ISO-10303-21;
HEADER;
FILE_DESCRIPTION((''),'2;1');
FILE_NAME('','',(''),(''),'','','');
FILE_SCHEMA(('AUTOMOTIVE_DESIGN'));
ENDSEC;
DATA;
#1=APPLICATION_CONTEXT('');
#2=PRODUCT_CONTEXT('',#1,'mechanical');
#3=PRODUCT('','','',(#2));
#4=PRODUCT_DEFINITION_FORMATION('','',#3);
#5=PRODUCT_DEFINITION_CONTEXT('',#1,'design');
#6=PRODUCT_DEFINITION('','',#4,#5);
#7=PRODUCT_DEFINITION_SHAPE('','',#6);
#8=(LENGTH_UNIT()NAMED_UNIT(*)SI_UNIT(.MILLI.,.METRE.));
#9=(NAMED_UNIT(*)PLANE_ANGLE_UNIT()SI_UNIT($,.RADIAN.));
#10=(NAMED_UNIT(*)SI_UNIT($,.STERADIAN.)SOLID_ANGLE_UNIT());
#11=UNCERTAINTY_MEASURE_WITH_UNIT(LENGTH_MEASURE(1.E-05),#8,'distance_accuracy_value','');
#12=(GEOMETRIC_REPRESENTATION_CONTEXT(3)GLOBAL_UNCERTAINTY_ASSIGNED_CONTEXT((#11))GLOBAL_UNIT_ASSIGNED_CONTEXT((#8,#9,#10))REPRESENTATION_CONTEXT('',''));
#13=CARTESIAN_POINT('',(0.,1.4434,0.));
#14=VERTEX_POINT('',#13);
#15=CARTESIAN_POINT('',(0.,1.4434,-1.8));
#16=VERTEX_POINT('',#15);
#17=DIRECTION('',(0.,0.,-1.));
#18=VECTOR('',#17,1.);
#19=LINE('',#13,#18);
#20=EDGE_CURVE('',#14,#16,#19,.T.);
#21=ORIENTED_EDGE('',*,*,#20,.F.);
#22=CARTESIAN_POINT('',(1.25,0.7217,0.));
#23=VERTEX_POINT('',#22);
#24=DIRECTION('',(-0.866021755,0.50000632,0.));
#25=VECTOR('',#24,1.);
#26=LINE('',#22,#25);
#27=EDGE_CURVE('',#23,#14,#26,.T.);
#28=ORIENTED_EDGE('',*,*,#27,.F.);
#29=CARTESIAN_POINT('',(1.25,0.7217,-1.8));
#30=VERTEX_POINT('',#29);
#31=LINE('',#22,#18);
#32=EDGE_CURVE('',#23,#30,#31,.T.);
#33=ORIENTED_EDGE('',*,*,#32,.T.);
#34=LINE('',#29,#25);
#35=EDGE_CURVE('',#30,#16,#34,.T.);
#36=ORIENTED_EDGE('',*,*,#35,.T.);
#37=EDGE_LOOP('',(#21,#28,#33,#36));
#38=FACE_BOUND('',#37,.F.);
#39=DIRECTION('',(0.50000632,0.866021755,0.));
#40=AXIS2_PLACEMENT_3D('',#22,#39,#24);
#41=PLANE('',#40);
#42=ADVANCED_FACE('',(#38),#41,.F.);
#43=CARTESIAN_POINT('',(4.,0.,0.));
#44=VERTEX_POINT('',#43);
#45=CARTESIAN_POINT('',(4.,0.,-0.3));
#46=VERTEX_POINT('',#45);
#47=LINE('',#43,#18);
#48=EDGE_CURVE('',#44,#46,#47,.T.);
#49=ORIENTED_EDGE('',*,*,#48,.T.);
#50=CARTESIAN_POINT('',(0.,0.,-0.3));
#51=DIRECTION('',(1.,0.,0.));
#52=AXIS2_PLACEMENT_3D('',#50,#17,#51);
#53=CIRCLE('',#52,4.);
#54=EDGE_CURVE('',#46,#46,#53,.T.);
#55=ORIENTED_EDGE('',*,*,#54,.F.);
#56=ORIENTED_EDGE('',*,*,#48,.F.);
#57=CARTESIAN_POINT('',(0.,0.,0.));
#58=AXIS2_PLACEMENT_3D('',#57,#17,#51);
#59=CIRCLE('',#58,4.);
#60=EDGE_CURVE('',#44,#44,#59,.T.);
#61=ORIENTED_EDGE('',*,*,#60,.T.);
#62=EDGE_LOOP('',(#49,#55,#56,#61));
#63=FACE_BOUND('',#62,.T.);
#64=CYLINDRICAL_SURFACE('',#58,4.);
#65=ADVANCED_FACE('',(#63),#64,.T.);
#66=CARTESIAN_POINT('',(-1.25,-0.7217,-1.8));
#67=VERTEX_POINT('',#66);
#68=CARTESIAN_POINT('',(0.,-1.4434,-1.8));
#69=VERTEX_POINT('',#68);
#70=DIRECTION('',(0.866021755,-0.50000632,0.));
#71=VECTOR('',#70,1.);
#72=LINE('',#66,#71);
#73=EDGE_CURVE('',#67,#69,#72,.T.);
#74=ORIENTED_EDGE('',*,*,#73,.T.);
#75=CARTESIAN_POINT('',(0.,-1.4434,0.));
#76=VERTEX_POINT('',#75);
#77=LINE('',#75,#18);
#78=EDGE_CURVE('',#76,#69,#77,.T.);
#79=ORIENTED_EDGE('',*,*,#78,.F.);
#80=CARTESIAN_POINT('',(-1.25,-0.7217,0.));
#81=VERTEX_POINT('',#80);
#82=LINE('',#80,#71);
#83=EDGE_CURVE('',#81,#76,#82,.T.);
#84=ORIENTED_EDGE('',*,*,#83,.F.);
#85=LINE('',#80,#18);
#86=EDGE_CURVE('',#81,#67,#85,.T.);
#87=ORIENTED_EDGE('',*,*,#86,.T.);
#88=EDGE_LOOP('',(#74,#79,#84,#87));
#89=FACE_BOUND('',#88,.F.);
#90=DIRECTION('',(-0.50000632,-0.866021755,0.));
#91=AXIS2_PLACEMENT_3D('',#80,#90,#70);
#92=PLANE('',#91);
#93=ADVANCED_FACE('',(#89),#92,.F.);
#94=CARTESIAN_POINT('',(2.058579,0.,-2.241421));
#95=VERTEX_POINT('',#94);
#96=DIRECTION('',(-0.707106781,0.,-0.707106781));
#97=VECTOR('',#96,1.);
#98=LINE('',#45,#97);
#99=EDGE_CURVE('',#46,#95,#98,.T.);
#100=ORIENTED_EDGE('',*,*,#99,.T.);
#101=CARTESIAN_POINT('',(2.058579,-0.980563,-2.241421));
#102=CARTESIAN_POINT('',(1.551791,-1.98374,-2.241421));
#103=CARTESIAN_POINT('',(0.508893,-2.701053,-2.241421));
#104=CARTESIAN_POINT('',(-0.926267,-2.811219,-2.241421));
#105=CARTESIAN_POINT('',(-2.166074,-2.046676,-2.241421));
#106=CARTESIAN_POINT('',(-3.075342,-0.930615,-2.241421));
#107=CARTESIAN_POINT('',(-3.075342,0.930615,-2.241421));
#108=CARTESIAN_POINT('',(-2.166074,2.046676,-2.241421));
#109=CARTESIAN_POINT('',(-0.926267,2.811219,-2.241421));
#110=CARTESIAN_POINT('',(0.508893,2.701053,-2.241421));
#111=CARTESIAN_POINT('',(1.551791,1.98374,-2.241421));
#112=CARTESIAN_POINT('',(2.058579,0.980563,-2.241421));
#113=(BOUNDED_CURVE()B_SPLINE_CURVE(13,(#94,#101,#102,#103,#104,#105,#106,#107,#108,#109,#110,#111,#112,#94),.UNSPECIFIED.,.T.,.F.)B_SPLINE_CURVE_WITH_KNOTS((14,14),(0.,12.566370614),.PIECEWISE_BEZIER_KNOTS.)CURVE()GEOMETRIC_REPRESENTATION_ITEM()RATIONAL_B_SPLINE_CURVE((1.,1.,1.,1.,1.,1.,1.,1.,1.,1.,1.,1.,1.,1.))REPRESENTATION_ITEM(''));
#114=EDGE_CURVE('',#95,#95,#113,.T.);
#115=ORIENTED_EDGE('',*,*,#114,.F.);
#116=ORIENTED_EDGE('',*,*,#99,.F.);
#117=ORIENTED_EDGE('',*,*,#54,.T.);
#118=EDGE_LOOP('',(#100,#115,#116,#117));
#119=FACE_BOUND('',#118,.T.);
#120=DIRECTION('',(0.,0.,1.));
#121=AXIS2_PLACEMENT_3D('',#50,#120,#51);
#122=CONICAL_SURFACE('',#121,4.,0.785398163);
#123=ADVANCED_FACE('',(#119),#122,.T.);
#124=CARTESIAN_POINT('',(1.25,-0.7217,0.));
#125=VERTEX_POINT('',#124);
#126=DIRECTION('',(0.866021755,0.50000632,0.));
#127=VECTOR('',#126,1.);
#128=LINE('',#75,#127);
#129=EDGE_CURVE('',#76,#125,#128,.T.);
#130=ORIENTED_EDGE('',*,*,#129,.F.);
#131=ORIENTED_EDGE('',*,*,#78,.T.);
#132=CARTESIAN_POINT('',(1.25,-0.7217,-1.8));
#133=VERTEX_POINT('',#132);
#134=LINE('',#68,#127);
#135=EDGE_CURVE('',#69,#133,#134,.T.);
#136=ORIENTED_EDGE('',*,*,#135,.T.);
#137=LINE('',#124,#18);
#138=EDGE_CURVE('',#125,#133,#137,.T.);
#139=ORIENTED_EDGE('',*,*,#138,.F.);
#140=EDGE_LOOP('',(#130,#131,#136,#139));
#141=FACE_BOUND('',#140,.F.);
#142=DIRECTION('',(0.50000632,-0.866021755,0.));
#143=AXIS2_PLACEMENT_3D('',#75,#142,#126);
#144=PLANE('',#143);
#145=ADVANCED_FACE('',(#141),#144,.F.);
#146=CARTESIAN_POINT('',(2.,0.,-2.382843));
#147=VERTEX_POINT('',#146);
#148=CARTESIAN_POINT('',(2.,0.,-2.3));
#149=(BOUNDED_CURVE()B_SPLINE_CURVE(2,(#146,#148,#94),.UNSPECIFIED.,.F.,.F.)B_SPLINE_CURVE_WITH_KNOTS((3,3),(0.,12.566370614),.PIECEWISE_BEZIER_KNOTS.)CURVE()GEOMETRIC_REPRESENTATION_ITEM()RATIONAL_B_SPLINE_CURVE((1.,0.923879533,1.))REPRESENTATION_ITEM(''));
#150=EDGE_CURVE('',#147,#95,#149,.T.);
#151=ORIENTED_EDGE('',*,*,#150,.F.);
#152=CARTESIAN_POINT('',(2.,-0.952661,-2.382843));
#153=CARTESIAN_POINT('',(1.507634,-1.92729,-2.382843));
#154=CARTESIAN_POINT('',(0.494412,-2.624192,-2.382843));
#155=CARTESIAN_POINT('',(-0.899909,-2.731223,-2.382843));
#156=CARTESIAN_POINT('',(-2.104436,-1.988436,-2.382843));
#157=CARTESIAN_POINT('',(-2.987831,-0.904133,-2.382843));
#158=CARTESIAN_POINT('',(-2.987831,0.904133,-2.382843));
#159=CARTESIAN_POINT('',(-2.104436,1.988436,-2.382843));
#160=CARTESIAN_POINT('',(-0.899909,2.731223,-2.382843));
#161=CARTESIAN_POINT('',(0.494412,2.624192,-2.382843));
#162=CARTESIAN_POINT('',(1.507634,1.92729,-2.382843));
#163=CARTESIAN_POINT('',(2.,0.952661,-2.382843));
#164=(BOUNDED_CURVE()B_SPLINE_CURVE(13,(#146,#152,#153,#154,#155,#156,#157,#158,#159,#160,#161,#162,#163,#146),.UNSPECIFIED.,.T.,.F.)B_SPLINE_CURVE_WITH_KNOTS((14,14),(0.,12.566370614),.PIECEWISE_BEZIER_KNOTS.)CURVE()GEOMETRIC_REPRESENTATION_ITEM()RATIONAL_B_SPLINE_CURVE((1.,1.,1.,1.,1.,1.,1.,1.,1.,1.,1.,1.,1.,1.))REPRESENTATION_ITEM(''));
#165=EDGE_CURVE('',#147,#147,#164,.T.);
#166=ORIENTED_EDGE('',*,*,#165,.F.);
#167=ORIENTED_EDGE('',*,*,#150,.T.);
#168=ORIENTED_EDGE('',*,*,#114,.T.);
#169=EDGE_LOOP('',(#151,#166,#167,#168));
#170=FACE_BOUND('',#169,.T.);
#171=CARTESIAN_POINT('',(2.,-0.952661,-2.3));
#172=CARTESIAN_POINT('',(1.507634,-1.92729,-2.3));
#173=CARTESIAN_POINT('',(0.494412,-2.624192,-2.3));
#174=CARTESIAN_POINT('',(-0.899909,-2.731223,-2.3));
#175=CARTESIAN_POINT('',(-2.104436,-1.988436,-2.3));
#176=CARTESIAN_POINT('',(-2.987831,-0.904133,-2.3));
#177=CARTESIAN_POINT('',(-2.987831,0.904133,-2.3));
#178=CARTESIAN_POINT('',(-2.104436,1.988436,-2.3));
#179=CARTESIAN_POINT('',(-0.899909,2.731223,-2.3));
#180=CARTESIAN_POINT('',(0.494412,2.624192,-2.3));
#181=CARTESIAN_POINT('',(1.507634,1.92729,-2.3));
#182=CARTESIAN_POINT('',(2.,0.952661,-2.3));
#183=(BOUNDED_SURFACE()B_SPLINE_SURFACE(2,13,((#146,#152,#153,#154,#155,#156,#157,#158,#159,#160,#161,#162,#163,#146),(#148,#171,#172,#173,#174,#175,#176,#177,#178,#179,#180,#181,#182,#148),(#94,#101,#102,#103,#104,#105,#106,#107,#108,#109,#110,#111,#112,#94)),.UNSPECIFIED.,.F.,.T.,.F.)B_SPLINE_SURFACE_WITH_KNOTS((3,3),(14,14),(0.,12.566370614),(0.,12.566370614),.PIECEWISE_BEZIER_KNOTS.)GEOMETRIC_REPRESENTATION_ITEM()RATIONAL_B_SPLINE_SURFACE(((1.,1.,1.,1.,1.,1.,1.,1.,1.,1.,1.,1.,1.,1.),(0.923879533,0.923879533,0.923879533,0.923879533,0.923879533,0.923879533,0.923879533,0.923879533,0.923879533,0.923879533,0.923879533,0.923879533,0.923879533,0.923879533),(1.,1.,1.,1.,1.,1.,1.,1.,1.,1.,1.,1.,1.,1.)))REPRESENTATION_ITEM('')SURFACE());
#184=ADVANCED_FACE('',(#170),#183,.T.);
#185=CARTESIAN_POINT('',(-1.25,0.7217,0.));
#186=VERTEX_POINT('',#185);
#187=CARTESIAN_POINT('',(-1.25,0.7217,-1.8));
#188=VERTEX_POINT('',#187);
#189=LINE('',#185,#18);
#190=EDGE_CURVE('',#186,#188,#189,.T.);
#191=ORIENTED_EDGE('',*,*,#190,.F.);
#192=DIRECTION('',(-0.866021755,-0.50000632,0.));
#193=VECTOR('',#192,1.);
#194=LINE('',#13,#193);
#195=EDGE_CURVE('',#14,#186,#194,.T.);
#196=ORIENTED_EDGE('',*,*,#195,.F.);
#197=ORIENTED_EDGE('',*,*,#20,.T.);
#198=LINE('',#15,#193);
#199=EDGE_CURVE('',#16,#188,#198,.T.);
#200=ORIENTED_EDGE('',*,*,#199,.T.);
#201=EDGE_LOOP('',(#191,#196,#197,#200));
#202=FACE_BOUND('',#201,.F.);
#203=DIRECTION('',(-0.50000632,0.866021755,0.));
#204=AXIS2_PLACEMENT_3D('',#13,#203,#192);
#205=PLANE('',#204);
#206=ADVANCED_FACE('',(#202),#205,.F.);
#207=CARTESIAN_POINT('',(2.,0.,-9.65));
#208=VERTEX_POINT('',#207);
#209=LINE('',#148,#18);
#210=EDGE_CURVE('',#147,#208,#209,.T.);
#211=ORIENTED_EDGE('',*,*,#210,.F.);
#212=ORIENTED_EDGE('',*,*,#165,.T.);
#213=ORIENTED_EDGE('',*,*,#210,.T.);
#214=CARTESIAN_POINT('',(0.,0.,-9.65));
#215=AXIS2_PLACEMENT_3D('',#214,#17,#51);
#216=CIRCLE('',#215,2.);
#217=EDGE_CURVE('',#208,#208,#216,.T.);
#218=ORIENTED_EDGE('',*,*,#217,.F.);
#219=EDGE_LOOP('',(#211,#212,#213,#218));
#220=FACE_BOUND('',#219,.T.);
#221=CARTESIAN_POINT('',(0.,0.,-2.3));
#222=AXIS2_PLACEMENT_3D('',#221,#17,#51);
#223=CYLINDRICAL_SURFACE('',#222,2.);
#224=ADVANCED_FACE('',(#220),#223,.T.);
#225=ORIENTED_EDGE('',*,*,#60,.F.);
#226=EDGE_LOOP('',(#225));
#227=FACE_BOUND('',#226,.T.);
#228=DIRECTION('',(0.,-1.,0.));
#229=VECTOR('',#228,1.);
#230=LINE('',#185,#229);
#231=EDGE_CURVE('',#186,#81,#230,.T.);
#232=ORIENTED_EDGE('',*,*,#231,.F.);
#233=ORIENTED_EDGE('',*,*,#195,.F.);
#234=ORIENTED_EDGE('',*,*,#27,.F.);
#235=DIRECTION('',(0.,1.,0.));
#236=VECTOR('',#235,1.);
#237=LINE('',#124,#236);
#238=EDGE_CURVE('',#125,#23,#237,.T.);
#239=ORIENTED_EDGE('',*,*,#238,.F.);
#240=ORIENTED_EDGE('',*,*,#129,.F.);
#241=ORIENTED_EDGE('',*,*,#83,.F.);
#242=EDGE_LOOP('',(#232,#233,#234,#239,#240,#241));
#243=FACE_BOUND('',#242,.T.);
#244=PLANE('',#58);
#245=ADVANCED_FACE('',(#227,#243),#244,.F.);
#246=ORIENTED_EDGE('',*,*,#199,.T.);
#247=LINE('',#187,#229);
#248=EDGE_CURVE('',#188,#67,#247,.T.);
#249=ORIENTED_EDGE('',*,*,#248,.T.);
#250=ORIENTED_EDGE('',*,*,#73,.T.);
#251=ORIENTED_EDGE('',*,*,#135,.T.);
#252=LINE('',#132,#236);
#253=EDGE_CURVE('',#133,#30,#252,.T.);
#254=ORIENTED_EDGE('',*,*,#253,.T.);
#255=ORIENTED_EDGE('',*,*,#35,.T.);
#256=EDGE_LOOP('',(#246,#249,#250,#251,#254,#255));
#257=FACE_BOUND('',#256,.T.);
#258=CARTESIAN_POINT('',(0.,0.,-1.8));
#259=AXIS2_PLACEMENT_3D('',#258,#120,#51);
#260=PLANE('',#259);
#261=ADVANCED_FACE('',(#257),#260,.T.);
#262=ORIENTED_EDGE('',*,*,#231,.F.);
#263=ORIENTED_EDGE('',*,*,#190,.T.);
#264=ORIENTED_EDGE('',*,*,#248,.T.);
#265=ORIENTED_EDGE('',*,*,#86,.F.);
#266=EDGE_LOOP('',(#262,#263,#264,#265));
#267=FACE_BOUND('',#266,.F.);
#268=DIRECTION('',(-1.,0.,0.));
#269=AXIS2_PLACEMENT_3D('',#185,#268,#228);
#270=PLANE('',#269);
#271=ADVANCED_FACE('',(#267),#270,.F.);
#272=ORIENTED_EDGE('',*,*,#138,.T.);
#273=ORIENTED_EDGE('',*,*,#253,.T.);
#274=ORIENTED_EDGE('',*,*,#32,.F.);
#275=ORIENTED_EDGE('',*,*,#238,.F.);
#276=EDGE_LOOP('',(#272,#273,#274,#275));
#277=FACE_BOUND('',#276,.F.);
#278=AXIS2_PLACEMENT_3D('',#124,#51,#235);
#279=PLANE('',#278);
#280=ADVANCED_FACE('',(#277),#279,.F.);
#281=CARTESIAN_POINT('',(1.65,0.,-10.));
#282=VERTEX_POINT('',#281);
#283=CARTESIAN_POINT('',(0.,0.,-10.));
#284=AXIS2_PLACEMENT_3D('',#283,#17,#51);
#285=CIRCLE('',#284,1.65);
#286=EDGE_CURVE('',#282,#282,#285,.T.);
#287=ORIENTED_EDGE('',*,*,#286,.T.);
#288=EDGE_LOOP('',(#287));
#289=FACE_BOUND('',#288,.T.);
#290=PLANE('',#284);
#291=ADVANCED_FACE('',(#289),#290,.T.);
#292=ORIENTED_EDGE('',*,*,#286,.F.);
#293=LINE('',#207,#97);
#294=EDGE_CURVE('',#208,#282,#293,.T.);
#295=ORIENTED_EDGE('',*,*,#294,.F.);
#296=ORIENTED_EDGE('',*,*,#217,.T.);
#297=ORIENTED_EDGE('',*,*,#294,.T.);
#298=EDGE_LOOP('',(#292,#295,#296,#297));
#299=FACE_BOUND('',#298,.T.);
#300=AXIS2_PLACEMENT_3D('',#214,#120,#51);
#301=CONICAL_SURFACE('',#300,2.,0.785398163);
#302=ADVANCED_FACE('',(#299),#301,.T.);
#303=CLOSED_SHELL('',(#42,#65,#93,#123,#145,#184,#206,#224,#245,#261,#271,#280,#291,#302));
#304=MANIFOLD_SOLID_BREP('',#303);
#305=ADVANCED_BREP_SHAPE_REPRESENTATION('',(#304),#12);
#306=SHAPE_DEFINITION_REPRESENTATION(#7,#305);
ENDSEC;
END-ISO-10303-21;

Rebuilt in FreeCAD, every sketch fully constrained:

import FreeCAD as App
import Part
import Sketcher
from FreeCAD import Vector
Q = App.Units.Quantity


def edges_at(feature, points):
    """Names of the edges that pass closest to the given points."""
    edges = feature.Shape.Edges
    near = lambda p: min(range(len(edges)), key=lambda i: edges[i].distToShape(Part.Vertex(*p))[0])
    return sorted({f"Edge{near(p) + 1}" for p in points})

doc = App.newDocument("Part")
body = doc.addObject("PartDesign::Body", "Body")

sketch1 = body.newObject("Sketcher::SketchObject", "Sketch")
sketch1.AttachmentSupport = (doc.getObject("XZ_Plane"), [""])
sketch1.MapMode = "FlatFace"
sketch1.addGeometry([
    Part.LineSegment(Vector(2, -2.3, 0), Vector(2, -10, 0)),
    Part.LineSegment(Vector(2, -10, 0), Vector(0, -10, 0)),
    Part.LineSegment(Vector(0, -10, 0), Vector(0, 0, 0)),
    Part.LineSegment(Vector(0, 0, 0), Vector(4, 0, 0)),
    Part.LineSegment(Vector(4, 0, 0), Vector(4, -0.3, 0)),
    Part.LineSegment(Vector(4, -0.3, 0), Vector(2, -2.3, 0)),
], False)
sketch1.addConstraint([
    Sketcher.Constraint("Coincident", 0, 2, 1, 1),
    Sketcher.Constraint("Coincident", 1, 2, 2, 1),
    Sketcher.Constraint("Coincident", 2, 2, 3, 1),
    Sketcher.Constraint("Coincident", 3, 2, 4, 1),
    Sketcher.Constraint("Coincident", 4, 2, 5, 1),
    Sketcher.Constraint("Coincident", 5, 2, 0, 1),
    Sketcher.Constraint("Vertical", 0),
    Sketcher.Constraint("Horizontal", 1),
    Sketcher.Constraint("Vertical", 2),
    Sketcher.Constraint("Horizontal", 3),
    Sketcher.Constraint("Vertical", 4),
    Sketcher.Constraint("Coincident", 2, 2, -1, 1),
    Sketcher.Constraint("DistanceX", 1, 2, 1, 1, Q("2 mm")),
    Sketcher.Constraint("DistanceX", 3, 1, 3, 2, Q("4 mm")),
    Sketcher.Constraint("DistanceY", 2, 1, 2, 2, Q("10 mm")),
    Sketcher.Constraint("DistanceY", 4, 2, 4, 1, Q("0.3 mm")),
    Sketcher.Constraint("DistanceY", 5, 2, 4, 2, Q("2 mm")),
])
revolution = body.newObject("PartDesign::Revolution", "Revolution")
revolution.Profile = sketch1
revolution.ReferenceAxis = (sketch1, ["V_Axis"])
revolution.Angle = 360

sketch2 = body.newObject("Sketcher::SketchObject", "Sketch001")
sketch2.AttachmentSupport = (doc.getObject("XY_Plane"), [""])
sketch2.MapMode = "FlatFace"
sketch2.addGeometry([
    Part.LineSegment(Vector(0, 1.4, 0), Vector(-1.2, 0.7, 0)),
    Part.LineSegment(Vector(-1.2, 0.7, 0), Vector(-1.2, -0.7, 0)),
    Part.LineSegment(Vector(-1.2, -0.7, 0), Vector(0, -1.4, 0)),
    Part.LineSegment(Vector(0, -1.4, 0), Vector(1.2, -0.7, 0)),
    Part.LineSegment(Vector(1.2, -0.7, 0), Vector(1.2, 0.7, 0)),
    Part.LineSegment(Vector(1.2, 0.7, 0), Vector(0, 1.4, 0)),
], False)
sketch2.addConstraint([
    Sketcher.Constraint("Coincident", 0, 2, 1, 1),
    Sketcher.Constraint("Coincident", 1, 2, 2, 1),
    Sketcher.Constraint("Coincident", 2, 2, 3, 1),
    Sketcher.Constraint("Coincident", 3, 2, 4, 1),
    Sketcher.Constraint("Coincident", 4, 2, 5, 1),
    Sketcher.Constraint("Coincident", 5, 2, 0, 1),
    Sketcher.Constraint("Vertical", 1),
    Sketcher.Constraint("Vertical", 4),
    Sketcher.Constraint("Symmetric", 0, 2, 3, 2, -1, 1),
    Sketcher.Constraint("Symmetric", 2, 2, 5, 2, -1, 1),
    Sketcher.Constraint("PointOnObject", 2, 2, -2),
    Sketcher.Constraint("Parallel", 2, 5),
    Sketcher.Constraint("Horizontal", 1, 2, 3, 2),
    Sketcher.Constraint("DistanceX", 1, 2, 3, 2, Q("2.5 mm")),
    Sketcher.Constraint("Angle", 0, Q("-149.9996 deg")),
    Sketcher.Constraint("DistanceY", 1, 2, 1, 1, Q("1.4434 mm")),
])
pocket1 = body.newObject("PartDesign::Pocket", "Pocket")
pocket1.Profile = sketch2
pocket1.Length = 1.8
doc.recompute()

fillet = body.newObject("PartDesign::Fillet", "Fillet")
fillet.Base = (pocket1, edges_at(pocket1, [(-2, 0, -2.3)]))
fillet.Radius = 0.2
doc.recompute()

chamfer = body.newObject("PartDesign::Chamfer", "Chamfer")
chamfer.Base = (fillet, edges_at(fillet, [(-2, 0, -10)]))
chamfer.Size = 0.35

doc.recompute()
